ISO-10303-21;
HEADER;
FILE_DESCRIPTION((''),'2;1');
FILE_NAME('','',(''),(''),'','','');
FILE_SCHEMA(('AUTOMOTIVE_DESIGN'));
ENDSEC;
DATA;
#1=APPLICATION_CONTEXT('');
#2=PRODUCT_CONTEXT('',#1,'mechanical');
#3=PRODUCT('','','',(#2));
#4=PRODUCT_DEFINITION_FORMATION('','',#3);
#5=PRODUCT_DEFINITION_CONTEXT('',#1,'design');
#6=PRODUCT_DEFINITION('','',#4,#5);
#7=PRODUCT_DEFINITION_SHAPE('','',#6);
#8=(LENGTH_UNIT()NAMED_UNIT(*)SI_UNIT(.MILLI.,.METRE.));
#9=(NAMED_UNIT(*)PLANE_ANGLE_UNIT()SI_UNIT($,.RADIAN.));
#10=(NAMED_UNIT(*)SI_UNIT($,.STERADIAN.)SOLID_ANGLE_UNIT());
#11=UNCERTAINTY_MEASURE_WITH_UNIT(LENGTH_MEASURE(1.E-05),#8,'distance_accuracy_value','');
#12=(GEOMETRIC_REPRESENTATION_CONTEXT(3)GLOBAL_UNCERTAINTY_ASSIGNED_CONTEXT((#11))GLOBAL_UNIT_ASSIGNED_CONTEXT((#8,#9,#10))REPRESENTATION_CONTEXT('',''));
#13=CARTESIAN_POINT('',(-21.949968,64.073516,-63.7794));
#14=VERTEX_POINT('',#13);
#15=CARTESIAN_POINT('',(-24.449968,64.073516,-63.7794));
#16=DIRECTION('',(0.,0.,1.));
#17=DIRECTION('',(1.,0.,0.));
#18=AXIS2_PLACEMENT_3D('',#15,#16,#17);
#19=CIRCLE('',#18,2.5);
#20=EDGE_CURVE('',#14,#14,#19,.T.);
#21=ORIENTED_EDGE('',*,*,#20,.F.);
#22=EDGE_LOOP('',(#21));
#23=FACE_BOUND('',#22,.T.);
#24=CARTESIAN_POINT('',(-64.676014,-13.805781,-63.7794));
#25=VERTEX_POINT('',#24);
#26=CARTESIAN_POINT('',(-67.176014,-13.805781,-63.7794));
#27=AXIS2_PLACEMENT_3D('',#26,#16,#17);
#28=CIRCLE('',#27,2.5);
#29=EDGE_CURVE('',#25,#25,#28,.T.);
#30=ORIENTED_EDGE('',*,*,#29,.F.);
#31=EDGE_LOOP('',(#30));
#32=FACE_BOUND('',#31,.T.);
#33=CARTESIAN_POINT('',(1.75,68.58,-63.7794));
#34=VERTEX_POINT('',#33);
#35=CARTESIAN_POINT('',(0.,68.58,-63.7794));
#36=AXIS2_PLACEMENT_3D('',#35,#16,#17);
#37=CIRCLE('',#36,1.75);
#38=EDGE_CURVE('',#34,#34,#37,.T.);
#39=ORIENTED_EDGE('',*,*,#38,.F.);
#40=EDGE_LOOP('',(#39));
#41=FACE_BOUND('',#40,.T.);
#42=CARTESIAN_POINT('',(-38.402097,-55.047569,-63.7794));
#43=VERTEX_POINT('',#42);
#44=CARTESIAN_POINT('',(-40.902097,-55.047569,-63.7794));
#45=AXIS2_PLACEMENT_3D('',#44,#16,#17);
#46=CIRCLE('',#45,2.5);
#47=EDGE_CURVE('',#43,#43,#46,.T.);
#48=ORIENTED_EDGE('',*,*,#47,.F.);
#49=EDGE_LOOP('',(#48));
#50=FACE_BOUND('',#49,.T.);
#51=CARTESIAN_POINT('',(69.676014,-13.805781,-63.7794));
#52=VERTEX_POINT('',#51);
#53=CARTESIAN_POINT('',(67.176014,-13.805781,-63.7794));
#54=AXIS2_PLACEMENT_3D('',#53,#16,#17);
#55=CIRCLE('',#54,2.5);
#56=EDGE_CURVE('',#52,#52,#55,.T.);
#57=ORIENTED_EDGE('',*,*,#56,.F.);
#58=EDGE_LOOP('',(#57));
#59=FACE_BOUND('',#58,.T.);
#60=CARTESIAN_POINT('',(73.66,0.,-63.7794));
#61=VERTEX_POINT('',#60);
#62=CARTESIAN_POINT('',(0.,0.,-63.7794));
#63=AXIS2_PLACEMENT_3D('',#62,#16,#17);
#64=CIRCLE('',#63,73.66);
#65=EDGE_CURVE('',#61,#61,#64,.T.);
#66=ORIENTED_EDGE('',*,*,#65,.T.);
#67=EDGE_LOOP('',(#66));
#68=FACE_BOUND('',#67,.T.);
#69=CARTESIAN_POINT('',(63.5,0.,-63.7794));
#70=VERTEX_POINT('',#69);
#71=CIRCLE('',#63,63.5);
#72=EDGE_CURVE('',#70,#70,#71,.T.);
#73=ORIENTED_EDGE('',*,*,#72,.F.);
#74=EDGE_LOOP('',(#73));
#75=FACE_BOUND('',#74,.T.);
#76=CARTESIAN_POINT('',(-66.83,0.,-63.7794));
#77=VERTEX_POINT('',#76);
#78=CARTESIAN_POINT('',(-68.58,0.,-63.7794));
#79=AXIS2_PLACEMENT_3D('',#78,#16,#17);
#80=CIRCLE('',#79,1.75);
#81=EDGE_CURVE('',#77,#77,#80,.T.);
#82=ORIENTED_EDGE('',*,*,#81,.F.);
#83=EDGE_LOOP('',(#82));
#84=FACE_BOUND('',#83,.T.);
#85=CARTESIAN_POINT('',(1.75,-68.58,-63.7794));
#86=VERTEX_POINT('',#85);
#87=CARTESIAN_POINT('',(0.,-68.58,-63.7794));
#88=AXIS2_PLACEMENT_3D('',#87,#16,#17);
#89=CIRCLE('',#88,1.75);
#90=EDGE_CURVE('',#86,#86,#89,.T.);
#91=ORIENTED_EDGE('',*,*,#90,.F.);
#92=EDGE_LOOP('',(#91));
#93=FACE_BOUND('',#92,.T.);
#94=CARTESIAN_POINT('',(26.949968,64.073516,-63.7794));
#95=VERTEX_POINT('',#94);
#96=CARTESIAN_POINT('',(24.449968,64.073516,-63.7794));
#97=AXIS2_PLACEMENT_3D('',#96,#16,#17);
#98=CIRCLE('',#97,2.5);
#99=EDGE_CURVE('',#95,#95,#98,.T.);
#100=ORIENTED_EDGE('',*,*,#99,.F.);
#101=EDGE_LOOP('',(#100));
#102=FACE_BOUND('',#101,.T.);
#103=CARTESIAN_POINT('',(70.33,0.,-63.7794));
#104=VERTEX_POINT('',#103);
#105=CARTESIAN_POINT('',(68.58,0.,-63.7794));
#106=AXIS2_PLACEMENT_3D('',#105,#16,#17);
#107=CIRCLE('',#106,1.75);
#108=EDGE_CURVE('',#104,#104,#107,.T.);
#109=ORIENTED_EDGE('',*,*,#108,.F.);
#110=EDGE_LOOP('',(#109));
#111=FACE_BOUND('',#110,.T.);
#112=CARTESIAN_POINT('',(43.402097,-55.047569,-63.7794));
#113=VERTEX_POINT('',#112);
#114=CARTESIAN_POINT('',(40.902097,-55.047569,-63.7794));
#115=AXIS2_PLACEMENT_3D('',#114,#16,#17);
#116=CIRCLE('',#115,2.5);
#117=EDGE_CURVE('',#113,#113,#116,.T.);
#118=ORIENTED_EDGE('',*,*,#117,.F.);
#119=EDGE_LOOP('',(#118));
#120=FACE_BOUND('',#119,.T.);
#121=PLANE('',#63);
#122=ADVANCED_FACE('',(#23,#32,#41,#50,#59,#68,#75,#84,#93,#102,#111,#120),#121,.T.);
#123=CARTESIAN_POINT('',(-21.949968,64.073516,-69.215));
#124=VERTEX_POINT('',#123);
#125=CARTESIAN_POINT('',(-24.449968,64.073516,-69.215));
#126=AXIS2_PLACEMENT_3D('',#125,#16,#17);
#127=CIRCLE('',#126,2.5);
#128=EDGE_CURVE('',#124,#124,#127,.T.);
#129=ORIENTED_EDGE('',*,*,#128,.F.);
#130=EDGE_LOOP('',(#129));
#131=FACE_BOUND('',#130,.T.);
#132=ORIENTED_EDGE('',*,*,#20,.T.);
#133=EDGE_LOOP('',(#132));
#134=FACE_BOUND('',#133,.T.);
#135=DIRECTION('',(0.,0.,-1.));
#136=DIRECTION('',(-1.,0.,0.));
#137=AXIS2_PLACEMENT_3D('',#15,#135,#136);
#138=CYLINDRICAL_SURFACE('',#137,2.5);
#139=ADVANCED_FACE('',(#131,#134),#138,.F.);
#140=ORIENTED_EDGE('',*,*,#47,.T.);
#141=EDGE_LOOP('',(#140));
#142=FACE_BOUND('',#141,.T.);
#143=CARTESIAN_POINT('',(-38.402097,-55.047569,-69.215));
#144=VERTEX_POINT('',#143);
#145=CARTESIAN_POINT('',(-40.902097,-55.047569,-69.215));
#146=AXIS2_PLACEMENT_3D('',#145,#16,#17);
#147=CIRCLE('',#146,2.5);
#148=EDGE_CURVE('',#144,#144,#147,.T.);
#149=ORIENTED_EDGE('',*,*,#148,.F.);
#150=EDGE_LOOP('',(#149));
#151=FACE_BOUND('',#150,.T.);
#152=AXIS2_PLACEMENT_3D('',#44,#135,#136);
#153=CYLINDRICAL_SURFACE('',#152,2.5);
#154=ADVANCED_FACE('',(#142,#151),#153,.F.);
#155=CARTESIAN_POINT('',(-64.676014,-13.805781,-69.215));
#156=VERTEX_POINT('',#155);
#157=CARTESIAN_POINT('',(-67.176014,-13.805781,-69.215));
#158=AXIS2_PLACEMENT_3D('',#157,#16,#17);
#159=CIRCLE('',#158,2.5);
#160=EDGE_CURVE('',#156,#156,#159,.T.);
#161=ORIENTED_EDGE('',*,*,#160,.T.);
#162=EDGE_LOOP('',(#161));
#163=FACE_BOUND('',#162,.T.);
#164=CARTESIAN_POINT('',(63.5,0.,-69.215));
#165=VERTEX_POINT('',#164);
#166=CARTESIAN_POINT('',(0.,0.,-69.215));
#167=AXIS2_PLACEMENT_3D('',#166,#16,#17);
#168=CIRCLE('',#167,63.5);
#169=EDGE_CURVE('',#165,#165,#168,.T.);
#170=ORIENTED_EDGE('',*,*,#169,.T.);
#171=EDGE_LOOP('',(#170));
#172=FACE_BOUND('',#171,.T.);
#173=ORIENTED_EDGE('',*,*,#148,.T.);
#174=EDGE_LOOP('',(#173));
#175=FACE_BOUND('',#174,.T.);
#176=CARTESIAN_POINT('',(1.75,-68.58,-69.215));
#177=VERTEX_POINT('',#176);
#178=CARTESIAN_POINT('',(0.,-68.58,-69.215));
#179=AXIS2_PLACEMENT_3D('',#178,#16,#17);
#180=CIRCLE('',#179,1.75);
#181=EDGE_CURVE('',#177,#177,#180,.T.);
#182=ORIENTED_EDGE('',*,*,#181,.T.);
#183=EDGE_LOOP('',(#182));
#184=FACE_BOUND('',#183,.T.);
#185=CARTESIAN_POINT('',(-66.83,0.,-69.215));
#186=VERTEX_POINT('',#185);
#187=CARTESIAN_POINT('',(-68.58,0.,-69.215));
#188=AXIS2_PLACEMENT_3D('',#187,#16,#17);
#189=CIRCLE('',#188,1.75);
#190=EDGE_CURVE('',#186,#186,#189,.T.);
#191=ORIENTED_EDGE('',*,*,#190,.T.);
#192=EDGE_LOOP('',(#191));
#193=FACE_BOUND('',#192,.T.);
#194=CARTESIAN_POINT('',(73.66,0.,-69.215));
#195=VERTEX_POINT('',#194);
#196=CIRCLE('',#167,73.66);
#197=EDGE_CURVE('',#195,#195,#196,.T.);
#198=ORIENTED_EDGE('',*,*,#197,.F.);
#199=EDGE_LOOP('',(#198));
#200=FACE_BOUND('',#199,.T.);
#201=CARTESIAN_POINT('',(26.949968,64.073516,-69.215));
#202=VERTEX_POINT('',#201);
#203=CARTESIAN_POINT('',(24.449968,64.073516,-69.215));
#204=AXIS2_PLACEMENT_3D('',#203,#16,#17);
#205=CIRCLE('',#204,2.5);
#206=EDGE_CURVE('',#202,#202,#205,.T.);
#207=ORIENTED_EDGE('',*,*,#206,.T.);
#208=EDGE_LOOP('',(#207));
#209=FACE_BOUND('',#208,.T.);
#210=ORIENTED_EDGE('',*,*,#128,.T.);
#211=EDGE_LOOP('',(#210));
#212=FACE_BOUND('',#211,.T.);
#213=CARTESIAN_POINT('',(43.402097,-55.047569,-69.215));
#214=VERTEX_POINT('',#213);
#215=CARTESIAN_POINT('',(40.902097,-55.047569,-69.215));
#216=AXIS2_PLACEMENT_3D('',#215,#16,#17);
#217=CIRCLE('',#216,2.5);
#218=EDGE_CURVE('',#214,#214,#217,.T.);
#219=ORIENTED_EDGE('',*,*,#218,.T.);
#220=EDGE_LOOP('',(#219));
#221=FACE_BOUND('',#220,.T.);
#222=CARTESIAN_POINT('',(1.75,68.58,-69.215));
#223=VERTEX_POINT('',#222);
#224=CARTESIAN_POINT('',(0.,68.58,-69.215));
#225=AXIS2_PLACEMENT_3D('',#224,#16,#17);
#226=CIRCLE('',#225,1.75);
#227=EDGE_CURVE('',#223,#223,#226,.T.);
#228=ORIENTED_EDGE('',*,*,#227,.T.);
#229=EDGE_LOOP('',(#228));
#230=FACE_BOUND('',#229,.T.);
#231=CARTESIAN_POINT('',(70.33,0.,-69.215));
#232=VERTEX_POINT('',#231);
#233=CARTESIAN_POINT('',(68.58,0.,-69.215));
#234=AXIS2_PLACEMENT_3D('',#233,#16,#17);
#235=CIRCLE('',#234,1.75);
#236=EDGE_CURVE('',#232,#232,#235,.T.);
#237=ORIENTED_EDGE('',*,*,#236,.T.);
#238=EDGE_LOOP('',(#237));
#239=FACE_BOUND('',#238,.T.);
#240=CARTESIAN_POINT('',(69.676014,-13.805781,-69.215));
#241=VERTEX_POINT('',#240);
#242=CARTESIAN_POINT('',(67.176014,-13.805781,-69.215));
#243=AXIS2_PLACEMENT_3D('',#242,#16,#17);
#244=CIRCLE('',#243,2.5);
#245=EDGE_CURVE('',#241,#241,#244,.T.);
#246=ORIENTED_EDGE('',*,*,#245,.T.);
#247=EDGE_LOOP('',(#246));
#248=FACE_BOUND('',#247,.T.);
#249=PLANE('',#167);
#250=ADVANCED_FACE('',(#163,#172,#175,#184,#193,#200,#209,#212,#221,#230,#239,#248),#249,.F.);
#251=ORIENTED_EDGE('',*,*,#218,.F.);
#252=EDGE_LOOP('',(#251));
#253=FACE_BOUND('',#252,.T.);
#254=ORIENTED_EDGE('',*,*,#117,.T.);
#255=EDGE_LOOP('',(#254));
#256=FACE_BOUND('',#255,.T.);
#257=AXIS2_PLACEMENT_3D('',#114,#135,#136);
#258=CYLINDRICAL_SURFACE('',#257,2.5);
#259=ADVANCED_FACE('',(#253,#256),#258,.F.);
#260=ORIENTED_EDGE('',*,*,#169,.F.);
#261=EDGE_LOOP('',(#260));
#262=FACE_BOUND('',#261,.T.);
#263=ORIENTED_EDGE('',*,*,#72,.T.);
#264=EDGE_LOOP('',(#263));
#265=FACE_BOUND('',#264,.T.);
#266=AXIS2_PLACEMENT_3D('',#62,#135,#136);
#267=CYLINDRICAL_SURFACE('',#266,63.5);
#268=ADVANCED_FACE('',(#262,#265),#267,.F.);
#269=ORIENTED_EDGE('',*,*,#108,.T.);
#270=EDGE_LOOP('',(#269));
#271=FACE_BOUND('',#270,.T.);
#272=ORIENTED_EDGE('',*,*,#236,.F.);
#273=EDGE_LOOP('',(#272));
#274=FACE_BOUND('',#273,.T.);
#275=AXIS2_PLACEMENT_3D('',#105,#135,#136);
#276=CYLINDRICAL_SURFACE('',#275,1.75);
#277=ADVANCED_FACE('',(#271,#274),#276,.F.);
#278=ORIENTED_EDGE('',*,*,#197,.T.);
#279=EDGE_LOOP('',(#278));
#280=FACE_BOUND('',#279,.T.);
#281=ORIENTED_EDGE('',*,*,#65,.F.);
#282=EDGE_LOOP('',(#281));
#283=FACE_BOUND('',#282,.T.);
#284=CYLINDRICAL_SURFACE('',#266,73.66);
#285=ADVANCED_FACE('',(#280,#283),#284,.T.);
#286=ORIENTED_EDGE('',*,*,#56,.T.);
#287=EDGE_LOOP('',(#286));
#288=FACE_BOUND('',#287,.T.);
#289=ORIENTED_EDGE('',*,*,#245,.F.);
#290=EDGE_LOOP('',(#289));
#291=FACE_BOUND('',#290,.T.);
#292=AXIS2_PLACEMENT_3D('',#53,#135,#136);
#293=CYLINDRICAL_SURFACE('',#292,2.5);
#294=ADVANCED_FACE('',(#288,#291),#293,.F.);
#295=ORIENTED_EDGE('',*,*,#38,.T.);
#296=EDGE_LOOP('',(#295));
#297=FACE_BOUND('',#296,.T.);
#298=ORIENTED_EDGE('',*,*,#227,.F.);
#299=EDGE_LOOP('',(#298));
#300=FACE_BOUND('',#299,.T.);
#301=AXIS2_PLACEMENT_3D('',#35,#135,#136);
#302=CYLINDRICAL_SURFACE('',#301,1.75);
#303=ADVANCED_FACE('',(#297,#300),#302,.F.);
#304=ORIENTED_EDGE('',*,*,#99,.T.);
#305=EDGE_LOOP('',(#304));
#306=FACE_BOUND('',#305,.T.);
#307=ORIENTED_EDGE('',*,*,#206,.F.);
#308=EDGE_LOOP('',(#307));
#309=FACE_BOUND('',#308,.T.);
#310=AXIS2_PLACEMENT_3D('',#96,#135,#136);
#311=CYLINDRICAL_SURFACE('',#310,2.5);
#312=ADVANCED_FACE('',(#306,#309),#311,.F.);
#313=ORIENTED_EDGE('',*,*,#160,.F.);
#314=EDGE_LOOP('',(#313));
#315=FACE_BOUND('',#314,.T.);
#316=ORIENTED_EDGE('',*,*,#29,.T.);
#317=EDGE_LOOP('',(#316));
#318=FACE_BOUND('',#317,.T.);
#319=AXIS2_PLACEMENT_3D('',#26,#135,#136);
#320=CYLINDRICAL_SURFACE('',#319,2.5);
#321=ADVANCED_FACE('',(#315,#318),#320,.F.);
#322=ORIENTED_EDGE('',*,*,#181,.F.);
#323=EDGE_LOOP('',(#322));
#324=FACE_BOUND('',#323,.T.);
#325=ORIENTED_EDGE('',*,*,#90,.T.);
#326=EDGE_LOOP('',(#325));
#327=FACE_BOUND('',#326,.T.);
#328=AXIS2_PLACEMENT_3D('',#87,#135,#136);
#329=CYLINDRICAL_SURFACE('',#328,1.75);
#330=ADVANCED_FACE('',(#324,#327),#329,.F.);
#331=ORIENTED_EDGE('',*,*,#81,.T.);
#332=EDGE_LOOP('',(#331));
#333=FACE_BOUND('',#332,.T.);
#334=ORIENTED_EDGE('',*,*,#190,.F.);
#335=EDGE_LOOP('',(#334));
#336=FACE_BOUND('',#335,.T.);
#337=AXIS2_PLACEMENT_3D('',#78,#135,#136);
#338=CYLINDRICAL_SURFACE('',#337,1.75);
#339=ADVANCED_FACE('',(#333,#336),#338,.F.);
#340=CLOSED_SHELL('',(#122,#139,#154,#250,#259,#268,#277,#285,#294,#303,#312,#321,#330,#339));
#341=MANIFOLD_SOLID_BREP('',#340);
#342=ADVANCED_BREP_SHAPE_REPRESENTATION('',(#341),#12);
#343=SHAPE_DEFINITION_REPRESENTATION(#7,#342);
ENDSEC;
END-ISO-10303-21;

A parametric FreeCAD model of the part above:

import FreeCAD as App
import Part
import Sketcher
Q = App.Units.Quantity

doc = App.newDocument("Part")
body = doc.addObject("PartDesign::Body", "Body")

sketch1 = doc.addObject("Sketcher::SketchObject", "Sketch")
body.addObject(sketch1)
sketch1.AttachmentSupport = (doc.XY_Plane, [""])
sketch1.MapMode = "FlatFace"
sketch1.AttachmentOffset = App.Placement(App.Vector(0, 0, -2.725 * 25.4), App.Rotation())
sketch1.addGeometry([
    Part.Circle(App.Vector(0, 0, 0), App.Vector(0, 0, 1), 73.7),
    Part.Circle(App.Vector(-40.9, -55, 0), App.Vector(0, 0, 1), 2.5),
    Part.Circle(App.Vector(0, -68.6, 0), App.Vector(0, 0, 1), 1.8),
    Part.Circle(App.Vector(-67.2, -13.8, 0), App.Vector(0, 0, 1), 2.5),
    Part.Circle(App.Vector(0, 0, 0), App.Vector(0, 0, 1), 63.5),
    Part.Circle(App.Vector(40.9, -55, 0), App.Vector(0, 0, 1), 2.5),
    Part.Circle(App.Vector(67.2, -13.8, 0), App.Vector(0, 0, 1), 2.5),
    Part.Circle(App.Vector(-68.6, 0, 0), App.Vector(0, 0, 1), 1.8),
    Part.Circle(App.Vector(-24.4, 64.1, 0), App.Vector(0, 0, 1), 2.5),
    Part.Circle(App.Vector(0, 68.6, 0), App.Vector(0, 0, 1), 1.8),
    Part.Circle(App.Vector(68.6, 0, 0), App.Vector(0, 0, 1), 1.8),
    Part.Circle(App.Vector(24.4, 64.1, 0), App.Vector(0, 0, 1), 2.5),
], False)
sketch1.addConstraint([
    Sketcher.Constraint("Coincident", 0, 3, -1, 1),
    Sketcher.Constraint("Coincident", 4, 3, -1, 1),
    Sketcher.Constraint("Equal", 1, 3),
    Sketcher.Constraint("Equal", 3, 5),
    Sketcher.Constraint("Equal", 5, 6),
    Sketcher.Constraint("Equal", 2, 7),
    Sketcher.Constraint("Equal", 6, 8),
    Sketcher.Constraint("Equal", 7, 9),
    Sketcher.Constraint("Equal", 9, 10),
    Sketcher.Constraint("Equal", 8, 11),
    Sketcher.Constraint("Symmetric", 2, 3, 9, 3, -1, 1),
    Sketcher.Constraint("Symmetric", 7, 3, 10, 3, -1, 1),
    Sketcher.Constraint("Symmetric", 1, 3, 5, 3, -2),
    Sketcher.Constraint("Symmetric", 3, 3, 6, 3, -2),
    Sketcher.Constraint("Symmetric", 8, 3, 11, 3, -2),
    Sketcher.Constraint("PointOnObject", 2, 3, -2),
    Sketcher.Constraint("PointOnObject", 7, 3, -1),
    Sketcher.Constraint("Diameter", 4, Q("5 in")),
    Sketcher.Constraint("Diameter", 0, Q("5.8 in")),
    Sketcher.Constraint("DistanceY", 2, 3, -1, 1, Q("2.7 in")),
    Sketcher.Constraint("DistanceX", 7, 3, -1, 1, Q("2.7 in")),
    Sketcher.Constraint("Diameter", 1, 5.0),
    Sketcher.Constraint("Diameter", 2, 3.5),
    Sketcher.Constraint("DistanceY", 1, 3, -1, 1, 55.047569),
    Sketcher.Constraint("DistanceY", 3, 3, -1, 1, 13.805781),
    Sketcher.Constraint("DistanceX", 8, 3, -1, 1, 24.449968),
    Sketcher.Constraint("DistanceX", 3, 3, 5, 3, 108.078111),
    Sketcher.Constraint("DistanceX", 1, 3, 8, 3, 16.452129),
    Sketcher.Constraint("DistanceY", -1, 1, 8, 3, 64.073516),
])
pad1 = doc.addObject("PartDesign::Pad", "Pad")
body.addObject(pad1)
pad1.Profile = sketch1
pad1.Length = Q("0.214 in")

doc.recompute()
